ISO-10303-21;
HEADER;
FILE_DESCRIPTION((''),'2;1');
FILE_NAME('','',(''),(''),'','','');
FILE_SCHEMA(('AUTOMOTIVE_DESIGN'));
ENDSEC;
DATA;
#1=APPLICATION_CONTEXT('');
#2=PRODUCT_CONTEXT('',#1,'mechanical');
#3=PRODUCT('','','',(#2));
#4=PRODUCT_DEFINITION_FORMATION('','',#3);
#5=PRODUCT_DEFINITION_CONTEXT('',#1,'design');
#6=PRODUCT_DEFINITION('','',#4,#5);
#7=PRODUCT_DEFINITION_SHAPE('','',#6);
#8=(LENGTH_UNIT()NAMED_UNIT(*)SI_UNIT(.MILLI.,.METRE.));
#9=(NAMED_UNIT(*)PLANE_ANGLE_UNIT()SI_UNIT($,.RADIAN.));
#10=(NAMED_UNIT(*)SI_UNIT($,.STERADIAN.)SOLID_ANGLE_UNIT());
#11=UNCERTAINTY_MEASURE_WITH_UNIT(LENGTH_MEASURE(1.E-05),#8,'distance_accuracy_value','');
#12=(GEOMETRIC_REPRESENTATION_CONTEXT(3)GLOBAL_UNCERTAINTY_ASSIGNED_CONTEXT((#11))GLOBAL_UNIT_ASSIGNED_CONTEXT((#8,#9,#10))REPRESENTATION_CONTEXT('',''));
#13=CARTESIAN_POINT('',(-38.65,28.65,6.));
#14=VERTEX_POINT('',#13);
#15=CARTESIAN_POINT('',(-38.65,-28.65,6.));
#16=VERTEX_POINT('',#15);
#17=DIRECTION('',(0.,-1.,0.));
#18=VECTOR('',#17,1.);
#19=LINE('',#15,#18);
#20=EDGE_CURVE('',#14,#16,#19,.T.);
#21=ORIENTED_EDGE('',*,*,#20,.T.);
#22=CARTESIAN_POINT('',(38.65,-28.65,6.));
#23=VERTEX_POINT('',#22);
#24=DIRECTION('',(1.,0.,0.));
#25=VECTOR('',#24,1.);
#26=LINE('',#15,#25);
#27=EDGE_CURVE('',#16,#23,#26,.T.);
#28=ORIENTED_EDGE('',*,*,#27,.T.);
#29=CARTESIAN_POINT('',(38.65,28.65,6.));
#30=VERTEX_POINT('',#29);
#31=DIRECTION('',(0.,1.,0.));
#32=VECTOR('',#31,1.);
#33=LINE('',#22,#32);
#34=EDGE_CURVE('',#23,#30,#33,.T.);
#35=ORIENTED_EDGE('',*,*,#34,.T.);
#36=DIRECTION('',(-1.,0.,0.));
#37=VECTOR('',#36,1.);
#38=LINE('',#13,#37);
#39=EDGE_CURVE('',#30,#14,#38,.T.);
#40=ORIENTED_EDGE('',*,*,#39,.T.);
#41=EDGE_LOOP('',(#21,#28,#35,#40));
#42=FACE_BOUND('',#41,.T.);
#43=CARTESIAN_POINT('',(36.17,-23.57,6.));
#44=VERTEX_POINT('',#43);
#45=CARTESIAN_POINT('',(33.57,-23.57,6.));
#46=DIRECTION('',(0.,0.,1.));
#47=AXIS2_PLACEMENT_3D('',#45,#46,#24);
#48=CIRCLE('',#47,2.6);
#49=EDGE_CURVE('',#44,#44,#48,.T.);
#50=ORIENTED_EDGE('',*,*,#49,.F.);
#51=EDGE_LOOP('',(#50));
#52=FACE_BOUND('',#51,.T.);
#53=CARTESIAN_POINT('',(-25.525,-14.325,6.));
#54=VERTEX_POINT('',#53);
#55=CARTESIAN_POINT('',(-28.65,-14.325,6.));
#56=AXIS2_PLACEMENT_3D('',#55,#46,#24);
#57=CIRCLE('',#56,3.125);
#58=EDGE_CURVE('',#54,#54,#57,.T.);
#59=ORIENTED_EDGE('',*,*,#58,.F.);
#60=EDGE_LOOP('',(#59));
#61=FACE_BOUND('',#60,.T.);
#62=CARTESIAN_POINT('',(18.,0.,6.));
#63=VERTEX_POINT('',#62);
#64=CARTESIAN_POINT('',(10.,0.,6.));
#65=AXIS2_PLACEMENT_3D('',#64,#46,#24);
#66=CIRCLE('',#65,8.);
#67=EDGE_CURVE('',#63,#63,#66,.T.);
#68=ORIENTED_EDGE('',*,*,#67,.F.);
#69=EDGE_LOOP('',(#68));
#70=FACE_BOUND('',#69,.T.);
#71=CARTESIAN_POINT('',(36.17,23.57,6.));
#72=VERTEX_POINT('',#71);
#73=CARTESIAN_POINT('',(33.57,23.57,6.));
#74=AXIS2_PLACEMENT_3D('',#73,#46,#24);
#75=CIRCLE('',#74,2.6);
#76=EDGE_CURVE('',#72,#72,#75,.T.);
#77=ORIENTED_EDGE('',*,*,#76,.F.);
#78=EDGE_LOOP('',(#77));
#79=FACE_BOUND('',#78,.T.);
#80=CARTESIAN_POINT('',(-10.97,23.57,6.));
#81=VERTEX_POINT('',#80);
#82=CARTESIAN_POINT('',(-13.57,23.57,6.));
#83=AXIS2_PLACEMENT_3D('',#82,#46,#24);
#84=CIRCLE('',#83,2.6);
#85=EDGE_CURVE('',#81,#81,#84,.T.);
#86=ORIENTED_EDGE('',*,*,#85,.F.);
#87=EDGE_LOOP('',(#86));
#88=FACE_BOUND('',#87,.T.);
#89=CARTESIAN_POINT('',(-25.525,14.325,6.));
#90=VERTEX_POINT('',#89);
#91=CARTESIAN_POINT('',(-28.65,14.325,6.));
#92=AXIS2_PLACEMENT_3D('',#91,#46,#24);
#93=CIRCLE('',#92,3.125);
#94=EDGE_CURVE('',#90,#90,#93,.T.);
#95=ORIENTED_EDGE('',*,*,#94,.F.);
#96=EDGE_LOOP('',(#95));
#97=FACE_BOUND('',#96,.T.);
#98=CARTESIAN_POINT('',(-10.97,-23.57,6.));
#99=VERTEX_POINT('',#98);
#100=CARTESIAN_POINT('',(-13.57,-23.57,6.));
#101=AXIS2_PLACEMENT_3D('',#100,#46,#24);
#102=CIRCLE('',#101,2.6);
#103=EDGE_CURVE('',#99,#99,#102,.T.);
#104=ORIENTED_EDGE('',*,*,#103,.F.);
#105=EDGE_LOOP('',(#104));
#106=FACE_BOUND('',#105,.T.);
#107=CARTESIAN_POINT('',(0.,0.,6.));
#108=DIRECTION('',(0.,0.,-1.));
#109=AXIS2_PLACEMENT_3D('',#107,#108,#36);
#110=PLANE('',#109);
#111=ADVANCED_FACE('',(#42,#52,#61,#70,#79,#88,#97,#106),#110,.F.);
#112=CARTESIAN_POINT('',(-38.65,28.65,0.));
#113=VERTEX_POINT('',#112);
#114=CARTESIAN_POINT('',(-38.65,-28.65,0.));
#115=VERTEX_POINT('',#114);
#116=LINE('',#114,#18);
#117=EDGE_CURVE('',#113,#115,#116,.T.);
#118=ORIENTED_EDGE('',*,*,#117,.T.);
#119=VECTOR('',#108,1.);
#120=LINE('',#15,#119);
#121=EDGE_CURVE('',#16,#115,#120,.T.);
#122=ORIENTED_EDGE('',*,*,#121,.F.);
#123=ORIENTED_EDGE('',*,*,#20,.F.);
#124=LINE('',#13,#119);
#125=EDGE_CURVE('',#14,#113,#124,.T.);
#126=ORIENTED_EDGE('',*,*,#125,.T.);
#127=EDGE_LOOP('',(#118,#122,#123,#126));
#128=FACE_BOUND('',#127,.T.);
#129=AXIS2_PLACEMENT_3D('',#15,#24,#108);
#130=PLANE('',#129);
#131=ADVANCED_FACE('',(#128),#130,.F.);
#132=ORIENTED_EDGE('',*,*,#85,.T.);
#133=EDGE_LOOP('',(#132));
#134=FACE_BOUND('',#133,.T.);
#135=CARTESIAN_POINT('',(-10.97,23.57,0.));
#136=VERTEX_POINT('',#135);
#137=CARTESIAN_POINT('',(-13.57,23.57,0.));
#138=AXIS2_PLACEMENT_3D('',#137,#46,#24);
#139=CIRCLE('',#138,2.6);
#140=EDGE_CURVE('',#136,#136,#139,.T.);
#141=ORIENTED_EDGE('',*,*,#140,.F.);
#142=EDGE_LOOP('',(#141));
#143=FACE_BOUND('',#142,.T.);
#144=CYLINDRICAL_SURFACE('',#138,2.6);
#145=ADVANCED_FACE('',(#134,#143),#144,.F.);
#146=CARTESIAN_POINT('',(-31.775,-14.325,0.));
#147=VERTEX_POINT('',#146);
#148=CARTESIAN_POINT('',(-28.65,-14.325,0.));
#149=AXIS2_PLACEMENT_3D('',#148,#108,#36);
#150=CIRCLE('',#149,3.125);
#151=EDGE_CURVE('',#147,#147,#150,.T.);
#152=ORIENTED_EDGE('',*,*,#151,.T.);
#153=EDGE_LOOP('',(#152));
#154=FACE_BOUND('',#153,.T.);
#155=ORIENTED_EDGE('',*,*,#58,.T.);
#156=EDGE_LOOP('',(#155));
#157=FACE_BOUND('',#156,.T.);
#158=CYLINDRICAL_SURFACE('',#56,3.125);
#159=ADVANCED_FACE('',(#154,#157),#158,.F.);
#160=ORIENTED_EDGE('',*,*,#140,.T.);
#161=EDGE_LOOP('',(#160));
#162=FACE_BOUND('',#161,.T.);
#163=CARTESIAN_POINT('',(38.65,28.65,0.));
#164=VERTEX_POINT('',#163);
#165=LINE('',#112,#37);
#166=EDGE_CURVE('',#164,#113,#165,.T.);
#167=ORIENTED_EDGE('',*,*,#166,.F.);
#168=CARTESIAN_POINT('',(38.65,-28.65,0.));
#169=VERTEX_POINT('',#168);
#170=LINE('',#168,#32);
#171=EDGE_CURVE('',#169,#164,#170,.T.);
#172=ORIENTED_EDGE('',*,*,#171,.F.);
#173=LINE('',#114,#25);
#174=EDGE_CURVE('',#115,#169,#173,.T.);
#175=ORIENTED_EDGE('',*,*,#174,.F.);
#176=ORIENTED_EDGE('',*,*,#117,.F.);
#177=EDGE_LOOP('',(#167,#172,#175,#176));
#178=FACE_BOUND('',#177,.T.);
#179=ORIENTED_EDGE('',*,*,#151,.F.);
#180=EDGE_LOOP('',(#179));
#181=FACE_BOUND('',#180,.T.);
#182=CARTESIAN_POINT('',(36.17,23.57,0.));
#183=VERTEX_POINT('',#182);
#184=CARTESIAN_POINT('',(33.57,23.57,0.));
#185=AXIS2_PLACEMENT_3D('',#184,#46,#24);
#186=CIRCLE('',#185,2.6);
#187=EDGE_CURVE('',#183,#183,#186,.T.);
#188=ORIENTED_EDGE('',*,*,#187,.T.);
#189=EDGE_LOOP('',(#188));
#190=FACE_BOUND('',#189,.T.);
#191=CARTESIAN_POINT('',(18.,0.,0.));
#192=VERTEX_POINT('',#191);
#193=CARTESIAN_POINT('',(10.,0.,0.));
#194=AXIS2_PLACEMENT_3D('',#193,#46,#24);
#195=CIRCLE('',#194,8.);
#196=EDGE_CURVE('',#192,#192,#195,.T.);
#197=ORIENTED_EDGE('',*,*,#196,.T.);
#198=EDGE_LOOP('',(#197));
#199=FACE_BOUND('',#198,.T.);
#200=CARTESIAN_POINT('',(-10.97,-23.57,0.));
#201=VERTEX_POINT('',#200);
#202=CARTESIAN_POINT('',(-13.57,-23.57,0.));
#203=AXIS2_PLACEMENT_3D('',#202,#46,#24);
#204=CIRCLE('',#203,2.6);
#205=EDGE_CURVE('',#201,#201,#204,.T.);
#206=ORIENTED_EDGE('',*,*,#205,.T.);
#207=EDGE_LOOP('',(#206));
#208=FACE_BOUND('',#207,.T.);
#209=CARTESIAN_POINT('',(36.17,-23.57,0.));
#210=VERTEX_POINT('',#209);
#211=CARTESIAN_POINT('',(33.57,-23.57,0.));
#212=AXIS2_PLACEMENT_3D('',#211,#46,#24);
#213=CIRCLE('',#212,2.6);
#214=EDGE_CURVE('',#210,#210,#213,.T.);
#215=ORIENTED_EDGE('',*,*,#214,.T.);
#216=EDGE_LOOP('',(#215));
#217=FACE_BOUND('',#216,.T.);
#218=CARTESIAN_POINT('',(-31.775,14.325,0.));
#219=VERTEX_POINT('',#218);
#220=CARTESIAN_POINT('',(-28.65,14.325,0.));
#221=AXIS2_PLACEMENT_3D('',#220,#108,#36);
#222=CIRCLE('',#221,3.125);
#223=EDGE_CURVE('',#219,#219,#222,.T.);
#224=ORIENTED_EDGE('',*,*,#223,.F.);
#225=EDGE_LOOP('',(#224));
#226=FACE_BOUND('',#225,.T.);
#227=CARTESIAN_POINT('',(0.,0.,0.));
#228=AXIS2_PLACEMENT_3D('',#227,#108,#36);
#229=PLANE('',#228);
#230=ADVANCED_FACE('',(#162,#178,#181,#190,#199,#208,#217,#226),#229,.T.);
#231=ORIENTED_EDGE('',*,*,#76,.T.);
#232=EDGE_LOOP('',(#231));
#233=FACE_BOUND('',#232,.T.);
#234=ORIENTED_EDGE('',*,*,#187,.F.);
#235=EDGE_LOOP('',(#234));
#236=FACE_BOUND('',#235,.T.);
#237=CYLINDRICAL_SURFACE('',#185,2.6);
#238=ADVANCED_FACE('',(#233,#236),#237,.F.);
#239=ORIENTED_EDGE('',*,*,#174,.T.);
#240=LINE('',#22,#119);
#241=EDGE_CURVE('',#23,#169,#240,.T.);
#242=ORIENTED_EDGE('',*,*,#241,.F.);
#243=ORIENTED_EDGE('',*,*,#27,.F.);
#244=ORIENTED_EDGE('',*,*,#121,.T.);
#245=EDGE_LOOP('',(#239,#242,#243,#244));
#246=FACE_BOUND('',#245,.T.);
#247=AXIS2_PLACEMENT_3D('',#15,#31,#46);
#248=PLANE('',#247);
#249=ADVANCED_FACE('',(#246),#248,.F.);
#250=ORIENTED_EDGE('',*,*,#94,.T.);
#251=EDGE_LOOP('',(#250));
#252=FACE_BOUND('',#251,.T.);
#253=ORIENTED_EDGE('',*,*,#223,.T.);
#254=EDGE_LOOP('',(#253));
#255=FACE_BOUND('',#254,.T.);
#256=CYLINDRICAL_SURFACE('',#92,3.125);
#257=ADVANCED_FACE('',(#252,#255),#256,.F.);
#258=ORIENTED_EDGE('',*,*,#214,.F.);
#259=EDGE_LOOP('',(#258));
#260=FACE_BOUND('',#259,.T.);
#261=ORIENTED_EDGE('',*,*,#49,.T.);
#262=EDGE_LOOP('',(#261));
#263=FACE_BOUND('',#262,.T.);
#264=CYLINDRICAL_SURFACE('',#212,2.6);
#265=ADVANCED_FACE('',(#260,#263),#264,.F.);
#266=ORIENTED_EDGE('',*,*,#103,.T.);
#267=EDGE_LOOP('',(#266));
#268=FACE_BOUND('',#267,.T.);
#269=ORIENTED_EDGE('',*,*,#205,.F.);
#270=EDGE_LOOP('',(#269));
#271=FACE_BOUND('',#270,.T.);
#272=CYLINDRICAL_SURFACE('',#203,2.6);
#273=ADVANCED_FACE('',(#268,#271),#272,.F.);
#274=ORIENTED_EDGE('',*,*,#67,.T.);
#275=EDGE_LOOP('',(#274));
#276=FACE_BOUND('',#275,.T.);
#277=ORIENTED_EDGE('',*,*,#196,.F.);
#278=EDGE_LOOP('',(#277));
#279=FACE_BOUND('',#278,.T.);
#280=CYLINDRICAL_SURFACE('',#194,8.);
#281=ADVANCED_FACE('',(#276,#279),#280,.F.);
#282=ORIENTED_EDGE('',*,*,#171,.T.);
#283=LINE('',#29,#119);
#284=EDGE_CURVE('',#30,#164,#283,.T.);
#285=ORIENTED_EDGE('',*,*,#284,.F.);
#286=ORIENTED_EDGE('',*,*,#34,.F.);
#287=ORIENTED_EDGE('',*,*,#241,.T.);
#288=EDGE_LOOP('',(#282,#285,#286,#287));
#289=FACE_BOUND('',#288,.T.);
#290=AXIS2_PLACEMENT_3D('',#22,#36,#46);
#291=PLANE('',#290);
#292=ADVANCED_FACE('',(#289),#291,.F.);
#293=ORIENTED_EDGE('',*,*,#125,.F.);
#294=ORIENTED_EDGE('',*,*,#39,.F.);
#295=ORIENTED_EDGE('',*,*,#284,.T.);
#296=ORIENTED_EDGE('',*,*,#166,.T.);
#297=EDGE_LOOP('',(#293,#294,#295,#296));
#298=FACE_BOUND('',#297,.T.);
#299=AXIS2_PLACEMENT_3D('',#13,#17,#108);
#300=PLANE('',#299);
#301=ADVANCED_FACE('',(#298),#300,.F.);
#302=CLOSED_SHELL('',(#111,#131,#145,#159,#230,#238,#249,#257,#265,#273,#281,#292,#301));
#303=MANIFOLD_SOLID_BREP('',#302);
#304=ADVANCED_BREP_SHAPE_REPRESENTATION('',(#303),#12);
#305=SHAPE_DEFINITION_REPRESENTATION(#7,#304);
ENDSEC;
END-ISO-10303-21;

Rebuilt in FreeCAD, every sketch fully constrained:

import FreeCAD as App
import Part
import Sketcher

V = App.Vector

doc = App.newDocument("Part")
body = doc.addObject("PartDesign::Body", "Body")

# Sketch on XY plane
sketch1 = body.newObject("Sketcher::SketchObject", "Sketch")
sketch1.AttachmentSupport = (doc.getObject("XY_Plane"), [""])
sketch1.MapMode = "FlatFace"
sketch1.addGeometry([
    Part.LineSegment(V(-38.65, 28.65, 0), V(-38.65, -28.65, 0)),
    Part.LineSegment(V(-38.65, -28.65, 0), V(38.65, -28.65, 0)),
    Part.LineSegment(V(38.65, -28.65, 0), V(38.65, 28.65, 0)),
    Part.LineSegment(V(38.65, 28.65, 0), V(-38.65, 28.65, 0)),
], False)
sketch1.addConstraint([
    Sketcher.Constraint("Coincident", 0, 2, 1, 1),
    Sketcher.Constraint("Coincident", 1, 2, 2, 1),
    Sketcher.Constraint("Coincident", 2, 2, 3, 1),
    Sketcher.Constraint("Coincident", 3, 2, 0, 1),
    Sketcher.Constraint("Vertical", 0),
    Sketcher.Constraint("Horizontal", 1),
    Sketcher.Constraint("Vertical", 2),
    Sketcher.Constraint("Horizontal", 3),
    Sketcher.Constraint("Symmetric", 0, 2, 2, 2, -1, 1),
    Sketcher.Constraint("DistanceX", 1, 1, 1, 2, 77.3),
    Sketcher.Constraint("DistanceY", 0, 2, 0, 1, 57.3),
])
pad1 = body.newObject("PartDesign::Pad", "Pad")
pad1.Profile = sketch1
pad1.Length = 6

# Sketch on XY plane
sketch2 = body.newObject("Sketcher::SketchObject", "Sketch001")
sketch2.AttachmentSupport = (doc.getObject("XY_Plane"), [""])
sketch2.MapMode = "FlatFace"
sketch2.AttachmentOffset = App.Placement(V(0, 0, 6), App.Rotation())
sketch2.addGeometry([
    Part.Circle(V(10, 0, 0), V(0, 0, 1), 8),  # 0
    Part.Circle(V(-13.57, 23.57, 0), V(0, 0, 1), 2.6),  # 1
    Part.Circle(V(33.57, 23.57, 0), V(0, 0, 1), 2.6),  # 2
    Part.Circle(V(33.57, -23.57, 0), V(0, 0, 1), 2.6),  # 3
    Part.Circle(V(-13.57, -23.57, 0), V(0, 0, 1), 2.6),  # 4
], False)
sketch2.addConstraint([
    Sketcher.Constraint("Equal", 1, 2),
    Sketcher.Constraint("Equal", 2, 3),
    Sketcher.Constraint("Equal", 3, 4),
    Sketcher.Constraint("Symmetric", 2, 3, 3, 3, -1),
    Sketcher.Constraint("Symmetric", 1, 3, 4, 3, -1),
    Sketcher.Constraint("PointOnObject", 0, 3, -1),
    Sketcher.Constraint("Horizontal", 1, 3, 2, 3),
    Sketcher.Constraint("Diameter", 0, 16.0),
    Sketcher.Constraint("Diameter", 1, 5.2),
    Sketcher.Constraint("DistanceX", -1, 1, 0, 3, 10.0),
    Sketcher.Constraint("DistanceX", 1, 3, -1, 1, 13.57),
    Sketcher.Constraint("DistanceY", -1, 1, 1, 3, 23.57),
    Sketcher.Constraint("DistanceX", -1, 1, 2, 3, 33.57),
])
pocket1 = body.newObject("PartDesign::Pocket", "Pocket")
pocket1.Profile = sketch2
pocket1.Length = 6

# Sketch on XY plane
sketch3 = body.newObject("Sketcher::SketchObject", "Sketch002")
sketch3.AttachmentSupport = (doc.getObject("XY_Plane"), [""])
sketch3.MapMode = "FlatFace"
sketch3.AttachmentOffset = App.Placement(V(0, 0, 6), App.Rotation())
sketch3.addGeometry([
    Part.Circle(V(-28.65, 14.325, 0), V(0, 0, 1), 3.125),
    Part.Circle(V(-28.65, -14.325, 0), V(0, 0, 1), 3.125),
], False)
sketch3.addConstraint([
    Sketcher.Constraint("Equal", 0, 1),
    Sketcher.Constraint("Symmetric", 0, 3, 1, 3, -1),
    Sketcher.Constraint("Diameter", 0, 6.25),
    Sketcher.Constraint("DistanceX", 0, 3, -1, 1, 28.65),
    Sketcher.Constraint("DistanceY", 1, 3, 0, 3, 28.65),
])
doc.recompute()
hole = body.newObject("PartDesign::Hole", "Hole")
hole.Profile = sketch3
hole.ThreadType = "None"
hole.Diameter = 6.25
hole.DepthType = "Dimension"
hole.Depth = 20
hole.DrillPoint = "Angled"
hole.DrillPointAngle = 118

doc.recompute()
